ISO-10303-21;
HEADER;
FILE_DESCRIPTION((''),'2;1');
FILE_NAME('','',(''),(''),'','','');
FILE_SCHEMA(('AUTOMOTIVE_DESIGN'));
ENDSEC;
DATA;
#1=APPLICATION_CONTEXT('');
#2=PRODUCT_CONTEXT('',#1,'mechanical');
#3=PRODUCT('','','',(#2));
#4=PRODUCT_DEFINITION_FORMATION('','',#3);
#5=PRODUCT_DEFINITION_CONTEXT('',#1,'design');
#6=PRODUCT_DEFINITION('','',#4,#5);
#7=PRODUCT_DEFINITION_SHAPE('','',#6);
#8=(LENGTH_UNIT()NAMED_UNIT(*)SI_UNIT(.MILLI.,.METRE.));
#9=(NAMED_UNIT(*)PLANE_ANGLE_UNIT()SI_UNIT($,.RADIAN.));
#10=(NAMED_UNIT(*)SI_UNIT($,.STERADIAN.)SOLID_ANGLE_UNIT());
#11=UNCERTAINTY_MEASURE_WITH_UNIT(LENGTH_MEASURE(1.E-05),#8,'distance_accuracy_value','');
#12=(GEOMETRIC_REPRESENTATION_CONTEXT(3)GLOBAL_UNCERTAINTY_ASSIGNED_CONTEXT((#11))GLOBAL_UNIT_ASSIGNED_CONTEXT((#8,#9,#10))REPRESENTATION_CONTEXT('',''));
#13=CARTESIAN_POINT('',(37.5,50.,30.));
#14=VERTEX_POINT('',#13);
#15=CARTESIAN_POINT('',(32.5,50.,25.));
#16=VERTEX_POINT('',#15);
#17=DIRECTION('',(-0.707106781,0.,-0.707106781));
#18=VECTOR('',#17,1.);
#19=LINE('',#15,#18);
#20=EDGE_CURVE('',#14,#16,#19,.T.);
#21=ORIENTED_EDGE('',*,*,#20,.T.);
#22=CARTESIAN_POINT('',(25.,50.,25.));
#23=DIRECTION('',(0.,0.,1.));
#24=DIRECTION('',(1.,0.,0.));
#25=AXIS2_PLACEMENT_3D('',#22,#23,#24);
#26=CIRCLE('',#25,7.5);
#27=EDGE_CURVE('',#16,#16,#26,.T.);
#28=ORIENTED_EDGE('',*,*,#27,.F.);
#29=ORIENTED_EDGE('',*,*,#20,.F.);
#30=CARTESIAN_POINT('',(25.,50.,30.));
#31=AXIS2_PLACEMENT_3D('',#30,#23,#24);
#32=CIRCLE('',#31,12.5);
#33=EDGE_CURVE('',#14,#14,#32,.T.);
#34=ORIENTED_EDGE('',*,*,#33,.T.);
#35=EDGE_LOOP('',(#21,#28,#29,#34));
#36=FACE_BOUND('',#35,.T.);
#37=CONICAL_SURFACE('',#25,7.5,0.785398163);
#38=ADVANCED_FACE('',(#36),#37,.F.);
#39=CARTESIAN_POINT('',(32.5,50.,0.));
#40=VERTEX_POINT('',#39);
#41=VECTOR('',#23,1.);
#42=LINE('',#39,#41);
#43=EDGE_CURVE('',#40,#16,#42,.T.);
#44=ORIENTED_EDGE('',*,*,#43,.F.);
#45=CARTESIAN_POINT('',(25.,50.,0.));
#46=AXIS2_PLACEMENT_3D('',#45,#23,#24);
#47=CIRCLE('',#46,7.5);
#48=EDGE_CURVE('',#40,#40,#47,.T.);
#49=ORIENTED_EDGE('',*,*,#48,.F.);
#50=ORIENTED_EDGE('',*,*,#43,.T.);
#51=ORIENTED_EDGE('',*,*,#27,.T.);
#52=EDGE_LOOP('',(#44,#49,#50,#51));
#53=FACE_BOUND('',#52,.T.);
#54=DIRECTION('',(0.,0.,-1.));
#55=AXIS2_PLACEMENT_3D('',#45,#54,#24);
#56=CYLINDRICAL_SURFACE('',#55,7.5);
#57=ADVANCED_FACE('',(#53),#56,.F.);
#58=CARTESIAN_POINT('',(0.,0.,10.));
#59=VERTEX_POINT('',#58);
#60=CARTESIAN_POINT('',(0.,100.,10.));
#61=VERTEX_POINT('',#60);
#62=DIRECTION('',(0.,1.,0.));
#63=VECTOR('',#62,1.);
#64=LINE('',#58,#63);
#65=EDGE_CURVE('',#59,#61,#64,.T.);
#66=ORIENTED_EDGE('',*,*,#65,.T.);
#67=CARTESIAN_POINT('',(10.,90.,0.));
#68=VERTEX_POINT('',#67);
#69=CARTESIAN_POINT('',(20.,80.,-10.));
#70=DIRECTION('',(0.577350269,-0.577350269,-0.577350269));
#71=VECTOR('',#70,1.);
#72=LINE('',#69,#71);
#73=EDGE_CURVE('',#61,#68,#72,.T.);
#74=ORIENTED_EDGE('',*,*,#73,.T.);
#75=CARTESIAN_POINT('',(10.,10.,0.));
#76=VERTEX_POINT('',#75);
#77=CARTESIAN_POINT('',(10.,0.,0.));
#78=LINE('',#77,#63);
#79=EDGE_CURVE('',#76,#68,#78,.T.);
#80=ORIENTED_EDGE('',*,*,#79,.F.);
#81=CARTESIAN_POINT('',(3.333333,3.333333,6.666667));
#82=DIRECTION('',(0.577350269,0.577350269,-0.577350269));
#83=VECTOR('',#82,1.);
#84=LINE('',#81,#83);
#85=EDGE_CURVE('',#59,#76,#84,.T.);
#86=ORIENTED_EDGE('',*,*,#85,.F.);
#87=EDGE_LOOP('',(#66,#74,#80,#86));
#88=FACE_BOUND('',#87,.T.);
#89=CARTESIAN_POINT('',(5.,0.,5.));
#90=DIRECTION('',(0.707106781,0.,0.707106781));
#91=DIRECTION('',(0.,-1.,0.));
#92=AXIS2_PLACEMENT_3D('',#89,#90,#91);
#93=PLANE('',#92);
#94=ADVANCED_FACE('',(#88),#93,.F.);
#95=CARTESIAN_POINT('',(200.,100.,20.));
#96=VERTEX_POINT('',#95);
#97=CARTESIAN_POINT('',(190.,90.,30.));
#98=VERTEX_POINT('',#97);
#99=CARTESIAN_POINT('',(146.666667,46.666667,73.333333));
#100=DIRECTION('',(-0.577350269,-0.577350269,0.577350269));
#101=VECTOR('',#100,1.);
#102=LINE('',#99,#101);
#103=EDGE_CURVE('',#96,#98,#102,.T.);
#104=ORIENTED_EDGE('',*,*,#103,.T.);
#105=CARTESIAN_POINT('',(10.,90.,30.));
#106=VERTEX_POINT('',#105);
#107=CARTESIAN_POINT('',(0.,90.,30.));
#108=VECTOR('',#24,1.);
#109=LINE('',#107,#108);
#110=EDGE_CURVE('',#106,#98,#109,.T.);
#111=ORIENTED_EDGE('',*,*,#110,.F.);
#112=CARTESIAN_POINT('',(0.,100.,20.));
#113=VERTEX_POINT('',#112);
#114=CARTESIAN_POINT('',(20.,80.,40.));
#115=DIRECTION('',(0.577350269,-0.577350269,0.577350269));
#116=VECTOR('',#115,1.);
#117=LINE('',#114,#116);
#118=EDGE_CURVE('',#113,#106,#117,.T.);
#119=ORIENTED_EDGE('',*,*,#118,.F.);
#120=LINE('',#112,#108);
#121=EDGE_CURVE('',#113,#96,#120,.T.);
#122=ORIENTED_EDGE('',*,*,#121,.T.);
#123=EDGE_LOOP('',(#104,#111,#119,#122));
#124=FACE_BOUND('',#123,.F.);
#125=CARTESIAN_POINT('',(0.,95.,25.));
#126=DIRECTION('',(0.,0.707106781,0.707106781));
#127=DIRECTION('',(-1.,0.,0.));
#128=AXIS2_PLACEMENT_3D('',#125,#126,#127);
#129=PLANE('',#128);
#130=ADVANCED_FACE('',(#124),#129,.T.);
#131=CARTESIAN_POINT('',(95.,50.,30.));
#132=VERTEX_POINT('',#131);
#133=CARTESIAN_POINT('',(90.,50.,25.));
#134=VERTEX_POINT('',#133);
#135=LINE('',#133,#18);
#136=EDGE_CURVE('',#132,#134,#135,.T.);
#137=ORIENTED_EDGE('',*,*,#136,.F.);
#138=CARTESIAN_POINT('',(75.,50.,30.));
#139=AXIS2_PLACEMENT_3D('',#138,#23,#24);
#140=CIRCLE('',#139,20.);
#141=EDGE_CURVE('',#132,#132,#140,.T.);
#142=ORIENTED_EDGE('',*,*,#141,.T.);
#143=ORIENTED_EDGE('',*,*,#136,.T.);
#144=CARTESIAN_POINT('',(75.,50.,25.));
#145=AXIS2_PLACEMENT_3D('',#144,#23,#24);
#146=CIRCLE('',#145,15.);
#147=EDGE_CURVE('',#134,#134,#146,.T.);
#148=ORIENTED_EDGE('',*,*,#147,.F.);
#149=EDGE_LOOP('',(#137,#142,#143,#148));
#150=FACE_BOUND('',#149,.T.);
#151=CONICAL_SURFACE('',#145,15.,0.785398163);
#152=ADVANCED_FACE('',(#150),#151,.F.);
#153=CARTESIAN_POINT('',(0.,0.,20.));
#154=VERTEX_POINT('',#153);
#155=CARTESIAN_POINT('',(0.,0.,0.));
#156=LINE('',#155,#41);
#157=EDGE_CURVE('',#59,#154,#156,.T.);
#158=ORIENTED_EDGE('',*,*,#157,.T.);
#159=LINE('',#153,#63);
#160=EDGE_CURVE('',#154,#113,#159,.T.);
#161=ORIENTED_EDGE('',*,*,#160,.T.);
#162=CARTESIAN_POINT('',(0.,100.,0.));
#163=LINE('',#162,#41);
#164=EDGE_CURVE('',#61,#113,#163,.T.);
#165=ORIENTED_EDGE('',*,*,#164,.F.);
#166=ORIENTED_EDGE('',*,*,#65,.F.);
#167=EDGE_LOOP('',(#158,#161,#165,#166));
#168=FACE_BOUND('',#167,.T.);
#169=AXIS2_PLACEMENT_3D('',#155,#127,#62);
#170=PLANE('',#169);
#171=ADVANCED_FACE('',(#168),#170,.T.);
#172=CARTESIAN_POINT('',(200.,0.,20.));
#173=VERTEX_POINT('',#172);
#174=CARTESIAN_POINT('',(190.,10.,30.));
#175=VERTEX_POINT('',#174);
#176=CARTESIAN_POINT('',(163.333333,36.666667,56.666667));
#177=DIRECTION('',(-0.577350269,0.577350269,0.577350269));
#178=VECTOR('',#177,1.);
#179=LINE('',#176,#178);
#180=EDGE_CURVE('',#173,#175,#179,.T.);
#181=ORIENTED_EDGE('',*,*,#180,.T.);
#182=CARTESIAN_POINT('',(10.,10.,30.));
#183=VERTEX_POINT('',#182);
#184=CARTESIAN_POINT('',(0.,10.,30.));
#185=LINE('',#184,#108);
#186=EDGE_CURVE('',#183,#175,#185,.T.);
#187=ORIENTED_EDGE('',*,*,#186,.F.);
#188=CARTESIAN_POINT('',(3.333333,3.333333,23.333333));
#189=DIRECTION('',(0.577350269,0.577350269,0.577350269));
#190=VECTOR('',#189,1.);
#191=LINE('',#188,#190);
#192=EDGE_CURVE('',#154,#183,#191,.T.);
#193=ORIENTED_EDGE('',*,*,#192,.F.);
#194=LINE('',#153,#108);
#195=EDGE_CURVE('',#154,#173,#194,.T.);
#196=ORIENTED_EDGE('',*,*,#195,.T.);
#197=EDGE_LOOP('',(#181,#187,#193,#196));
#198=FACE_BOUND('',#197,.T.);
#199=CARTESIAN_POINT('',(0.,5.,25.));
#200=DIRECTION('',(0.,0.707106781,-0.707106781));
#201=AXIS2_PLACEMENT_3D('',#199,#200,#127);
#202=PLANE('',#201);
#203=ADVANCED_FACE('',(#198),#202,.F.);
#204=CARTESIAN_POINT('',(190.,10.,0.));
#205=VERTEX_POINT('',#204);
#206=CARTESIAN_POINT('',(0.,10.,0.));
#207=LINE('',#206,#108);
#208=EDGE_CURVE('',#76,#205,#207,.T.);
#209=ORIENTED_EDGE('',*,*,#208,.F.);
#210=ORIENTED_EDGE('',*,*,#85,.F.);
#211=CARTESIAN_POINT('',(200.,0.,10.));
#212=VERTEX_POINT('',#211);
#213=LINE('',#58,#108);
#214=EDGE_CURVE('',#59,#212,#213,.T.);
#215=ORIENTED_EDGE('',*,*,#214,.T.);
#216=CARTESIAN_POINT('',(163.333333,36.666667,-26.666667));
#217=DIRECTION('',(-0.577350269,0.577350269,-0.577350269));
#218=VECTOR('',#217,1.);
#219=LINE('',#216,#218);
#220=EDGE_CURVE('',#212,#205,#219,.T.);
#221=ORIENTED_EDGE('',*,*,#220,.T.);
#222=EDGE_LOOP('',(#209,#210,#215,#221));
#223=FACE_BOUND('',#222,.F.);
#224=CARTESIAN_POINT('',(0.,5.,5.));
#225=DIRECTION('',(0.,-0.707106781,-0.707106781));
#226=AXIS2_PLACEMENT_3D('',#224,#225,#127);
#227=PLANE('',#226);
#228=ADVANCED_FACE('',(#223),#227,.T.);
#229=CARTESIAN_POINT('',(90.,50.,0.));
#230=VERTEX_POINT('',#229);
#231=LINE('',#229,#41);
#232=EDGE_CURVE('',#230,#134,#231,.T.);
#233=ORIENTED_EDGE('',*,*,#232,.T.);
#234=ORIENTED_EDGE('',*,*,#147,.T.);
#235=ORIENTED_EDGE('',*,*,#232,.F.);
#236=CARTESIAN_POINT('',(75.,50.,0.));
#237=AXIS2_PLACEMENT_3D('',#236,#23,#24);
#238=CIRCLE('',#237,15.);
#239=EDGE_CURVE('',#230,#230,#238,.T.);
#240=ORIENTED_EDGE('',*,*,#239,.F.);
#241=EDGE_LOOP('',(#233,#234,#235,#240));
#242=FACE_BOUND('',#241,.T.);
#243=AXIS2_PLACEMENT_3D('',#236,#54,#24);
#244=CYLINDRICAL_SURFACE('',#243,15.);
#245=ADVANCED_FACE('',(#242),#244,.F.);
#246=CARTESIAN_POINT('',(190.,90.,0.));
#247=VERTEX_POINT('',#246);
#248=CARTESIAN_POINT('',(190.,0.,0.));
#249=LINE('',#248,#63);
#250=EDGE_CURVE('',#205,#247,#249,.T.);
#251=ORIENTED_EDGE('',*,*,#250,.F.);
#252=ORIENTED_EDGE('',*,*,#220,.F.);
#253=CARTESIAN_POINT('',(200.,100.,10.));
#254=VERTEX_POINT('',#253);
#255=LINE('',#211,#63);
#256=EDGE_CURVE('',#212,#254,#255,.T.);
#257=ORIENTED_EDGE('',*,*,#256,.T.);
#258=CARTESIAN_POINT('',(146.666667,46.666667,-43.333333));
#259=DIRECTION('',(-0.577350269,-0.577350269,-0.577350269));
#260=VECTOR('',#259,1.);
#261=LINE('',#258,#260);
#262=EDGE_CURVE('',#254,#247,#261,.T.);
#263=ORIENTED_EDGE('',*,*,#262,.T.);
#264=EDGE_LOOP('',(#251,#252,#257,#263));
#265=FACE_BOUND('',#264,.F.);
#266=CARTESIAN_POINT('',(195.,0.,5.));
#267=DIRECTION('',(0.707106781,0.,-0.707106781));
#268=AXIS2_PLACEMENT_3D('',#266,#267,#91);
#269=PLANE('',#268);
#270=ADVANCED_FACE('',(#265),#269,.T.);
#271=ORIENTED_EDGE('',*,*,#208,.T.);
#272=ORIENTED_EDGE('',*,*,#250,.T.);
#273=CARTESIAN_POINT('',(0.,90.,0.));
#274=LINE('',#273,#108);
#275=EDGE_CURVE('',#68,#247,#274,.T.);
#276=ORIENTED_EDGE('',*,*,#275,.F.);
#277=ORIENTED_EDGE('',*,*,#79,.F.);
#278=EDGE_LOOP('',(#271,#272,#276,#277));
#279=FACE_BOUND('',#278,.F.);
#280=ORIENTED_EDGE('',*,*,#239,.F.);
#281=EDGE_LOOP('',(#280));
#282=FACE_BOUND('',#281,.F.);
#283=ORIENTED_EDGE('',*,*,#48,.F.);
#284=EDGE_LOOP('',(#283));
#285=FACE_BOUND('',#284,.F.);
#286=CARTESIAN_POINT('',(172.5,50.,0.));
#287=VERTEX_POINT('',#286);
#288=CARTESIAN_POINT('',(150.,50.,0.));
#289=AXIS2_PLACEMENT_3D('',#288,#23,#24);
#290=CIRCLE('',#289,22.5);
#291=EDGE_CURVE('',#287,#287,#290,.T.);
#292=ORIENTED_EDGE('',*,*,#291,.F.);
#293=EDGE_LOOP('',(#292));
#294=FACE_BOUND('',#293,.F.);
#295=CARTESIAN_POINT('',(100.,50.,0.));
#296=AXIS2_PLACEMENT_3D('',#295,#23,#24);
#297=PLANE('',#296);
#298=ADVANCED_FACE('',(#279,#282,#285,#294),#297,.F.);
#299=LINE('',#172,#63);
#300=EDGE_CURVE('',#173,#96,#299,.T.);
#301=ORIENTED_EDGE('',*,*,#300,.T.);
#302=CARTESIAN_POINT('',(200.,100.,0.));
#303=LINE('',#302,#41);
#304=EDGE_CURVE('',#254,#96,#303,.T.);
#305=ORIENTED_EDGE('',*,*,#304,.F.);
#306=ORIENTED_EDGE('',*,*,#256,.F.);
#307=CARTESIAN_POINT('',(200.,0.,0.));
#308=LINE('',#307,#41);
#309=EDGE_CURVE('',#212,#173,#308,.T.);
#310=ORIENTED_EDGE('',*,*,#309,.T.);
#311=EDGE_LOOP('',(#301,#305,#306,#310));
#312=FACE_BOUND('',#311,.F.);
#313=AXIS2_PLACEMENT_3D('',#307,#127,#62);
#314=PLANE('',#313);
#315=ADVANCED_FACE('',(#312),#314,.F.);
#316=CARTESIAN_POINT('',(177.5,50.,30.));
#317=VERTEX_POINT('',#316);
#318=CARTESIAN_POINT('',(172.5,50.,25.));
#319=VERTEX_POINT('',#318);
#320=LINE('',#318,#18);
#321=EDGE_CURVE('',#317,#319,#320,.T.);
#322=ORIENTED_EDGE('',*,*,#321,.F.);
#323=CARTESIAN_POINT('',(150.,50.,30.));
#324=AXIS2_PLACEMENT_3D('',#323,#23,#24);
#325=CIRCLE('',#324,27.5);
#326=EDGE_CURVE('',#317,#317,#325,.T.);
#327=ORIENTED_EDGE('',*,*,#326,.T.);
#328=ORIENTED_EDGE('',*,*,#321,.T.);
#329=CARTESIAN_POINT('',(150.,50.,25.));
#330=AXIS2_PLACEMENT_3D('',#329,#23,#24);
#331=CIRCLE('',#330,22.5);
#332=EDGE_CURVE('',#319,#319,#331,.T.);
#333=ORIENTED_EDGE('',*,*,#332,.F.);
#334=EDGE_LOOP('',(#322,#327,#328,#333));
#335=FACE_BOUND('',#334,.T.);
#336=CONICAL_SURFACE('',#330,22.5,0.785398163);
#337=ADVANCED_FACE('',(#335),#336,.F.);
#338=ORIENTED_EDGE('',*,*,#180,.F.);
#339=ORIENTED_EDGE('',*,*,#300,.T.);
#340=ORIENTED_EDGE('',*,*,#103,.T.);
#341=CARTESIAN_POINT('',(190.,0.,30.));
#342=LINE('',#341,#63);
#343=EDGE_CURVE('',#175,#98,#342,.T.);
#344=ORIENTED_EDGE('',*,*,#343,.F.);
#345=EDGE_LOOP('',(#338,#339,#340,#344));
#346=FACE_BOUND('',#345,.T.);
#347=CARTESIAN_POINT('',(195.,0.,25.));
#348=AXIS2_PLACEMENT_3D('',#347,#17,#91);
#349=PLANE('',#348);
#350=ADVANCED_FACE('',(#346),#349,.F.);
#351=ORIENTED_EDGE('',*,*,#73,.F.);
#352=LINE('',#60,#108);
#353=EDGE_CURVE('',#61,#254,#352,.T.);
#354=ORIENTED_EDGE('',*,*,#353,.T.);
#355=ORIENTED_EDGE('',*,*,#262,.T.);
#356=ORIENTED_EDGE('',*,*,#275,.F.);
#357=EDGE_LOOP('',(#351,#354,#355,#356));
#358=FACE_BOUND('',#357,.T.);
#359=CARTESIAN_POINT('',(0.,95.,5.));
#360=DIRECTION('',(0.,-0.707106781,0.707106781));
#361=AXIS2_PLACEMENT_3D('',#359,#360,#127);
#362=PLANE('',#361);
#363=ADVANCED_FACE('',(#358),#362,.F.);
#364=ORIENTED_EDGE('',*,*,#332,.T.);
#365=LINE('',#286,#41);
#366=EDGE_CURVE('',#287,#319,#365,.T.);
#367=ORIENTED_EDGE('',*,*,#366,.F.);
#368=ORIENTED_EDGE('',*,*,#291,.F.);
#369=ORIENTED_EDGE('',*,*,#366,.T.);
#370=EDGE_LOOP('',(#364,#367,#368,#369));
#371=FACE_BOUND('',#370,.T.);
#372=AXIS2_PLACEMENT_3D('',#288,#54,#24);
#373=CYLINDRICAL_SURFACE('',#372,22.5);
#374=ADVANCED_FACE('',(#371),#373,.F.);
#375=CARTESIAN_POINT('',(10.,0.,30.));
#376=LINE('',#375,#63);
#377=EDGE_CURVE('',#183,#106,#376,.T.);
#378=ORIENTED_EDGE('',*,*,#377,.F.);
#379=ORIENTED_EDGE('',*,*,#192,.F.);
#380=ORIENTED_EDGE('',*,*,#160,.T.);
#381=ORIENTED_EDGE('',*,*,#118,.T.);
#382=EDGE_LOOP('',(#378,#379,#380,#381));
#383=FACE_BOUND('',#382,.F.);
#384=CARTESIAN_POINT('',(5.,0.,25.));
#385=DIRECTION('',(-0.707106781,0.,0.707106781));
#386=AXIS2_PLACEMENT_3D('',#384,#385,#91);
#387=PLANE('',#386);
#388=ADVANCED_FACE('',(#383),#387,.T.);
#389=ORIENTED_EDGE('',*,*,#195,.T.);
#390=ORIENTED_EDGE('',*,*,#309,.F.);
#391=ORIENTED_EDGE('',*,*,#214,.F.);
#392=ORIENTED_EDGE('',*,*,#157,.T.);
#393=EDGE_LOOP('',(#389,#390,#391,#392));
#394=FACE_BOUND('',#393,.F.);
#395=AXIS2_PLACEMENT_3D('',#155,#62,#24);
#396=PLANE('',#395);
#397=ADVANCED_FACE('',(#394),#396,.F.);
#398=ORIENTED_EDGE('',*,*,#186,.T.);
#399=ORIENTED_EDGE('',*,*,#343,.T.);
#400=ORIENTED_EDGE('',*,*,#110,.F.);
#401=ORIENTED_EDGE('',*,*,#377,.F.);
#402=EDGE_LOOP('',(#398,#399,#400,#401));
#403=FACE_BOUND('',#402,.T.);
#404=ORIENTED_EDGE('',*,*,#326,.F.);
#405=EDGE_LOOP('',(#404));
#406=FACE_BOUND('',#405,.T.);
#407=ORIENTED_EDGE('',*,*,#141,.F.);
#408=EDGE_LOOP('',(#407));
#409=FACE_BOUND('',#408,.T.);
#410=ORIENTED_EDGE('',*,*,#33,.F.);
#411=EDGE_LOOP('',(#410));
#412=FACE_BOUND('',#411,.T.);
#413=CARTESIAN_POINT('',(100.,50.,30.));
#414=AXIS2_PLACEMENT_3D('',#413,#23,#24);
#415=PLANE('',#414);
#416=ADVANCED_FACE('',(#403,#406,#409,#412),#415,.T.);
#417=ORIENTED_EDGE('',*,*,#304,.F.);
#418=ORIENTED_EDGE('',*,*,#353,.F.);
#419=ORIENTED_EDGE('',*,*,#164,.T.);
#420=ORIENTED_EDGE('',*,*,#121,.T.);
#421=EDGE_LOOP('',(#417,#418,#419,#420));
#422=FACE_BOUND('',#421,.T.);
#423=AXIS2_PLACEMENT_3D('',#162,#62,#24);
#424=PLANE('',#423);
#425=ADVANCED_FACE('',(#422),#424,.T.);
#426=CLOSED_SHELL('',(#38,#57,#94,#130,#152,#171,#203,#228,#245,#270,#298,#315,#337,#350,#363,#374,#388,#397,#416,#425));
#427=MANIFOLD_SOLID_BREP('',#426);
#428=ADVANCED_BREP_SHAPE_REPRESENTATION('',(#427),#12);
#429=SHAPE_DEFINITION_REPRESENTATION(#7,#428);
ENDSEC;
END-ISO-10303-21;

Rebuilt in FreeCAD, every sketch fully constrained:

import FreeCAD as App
import Part
import Sketcher

V = App.Vector


def edges_at(feature, points):
    """Names of the edges that pass closest to the given points."""
    edges = feature.Shape.Edges
    near = lambda p: min(range(len(edges)), key=lambda i: edges[i].distToShape(Part.Vertex(*p))[0])
    return sorted({f"Edge{near(p) + 1}" for p in points})


def add_polygon(sketch, points):
    """Adds a closed chain of lines whose ends are joined by coincident constraints."""
    first, n = sketch.GeometryCount, len(points)
    for a, b in zip(points, points[1:] + points[:1]):
        sketch.addGeometry(Part.LineSegment(App.Vector(*a, 0), App.Vector(*b, 0)), False)
    for i in range(n):
        sketch.addConstraint(Sketcher.Constraint("Coincident", first + i, 2, first + (i + 1) % n, 1))

doc = App.newDocument("Part")
body = doc.addObject("PartDesign::Body", "Body")

# Sketch on XY plane
sketch1 = body.newObject("Sketcher::SketchObject", "Sketch")
sketch1.AttachmentSupport = (doc.getObject("XY_Plane"), [""])
sketch1.MapMode = "FlatFace"
add_polygon(sketch1, [(0, 100), (0, 0), (200, 0), (200, 100)])  # lines 0-3
sketch1.addGeometry(Part.Circle(V(25, 50, 0), V(0, 0, 1), 8), False)  # 4
sketch1.addGeometry(Part.Circle(V(75, 50, 0), V(0, 0, 1), 15), False)  # 5
sketch1.addGeometry(Part.Circle(V(150, 50, 0), V(0, 0, 1), 22), False)  # 6
sketch1.addConstraint([
    Sketcher.Constraint("Vertical", 0),
    Sketcher.Constraint("Horizontal", 1),
    Sketcher.Constraint("Vertical", 2),
    Sketcher.Constraint("Horizontal", 3),
    Sketcher.Constraint("Coincident", 0, 2, -1, 1),
    Sketcher.Constraint("Horizontal", 4, 3, 5, 3),
    Sketcher.Constraint("Horizontal", 5, 3, 6, 3),
    Sketcher.Constraint("Diameter", 4, 15.0),
    Sketcher.Constraint("Diameter", 5, 30.0),
    Sketcher.Constraint("Diameter", 6, 45.0),
    Sketcher.Constraint("DistanceX", 1, 1, 1, 2, 200.0),
    Sketcher.Constraint("DistanceY", 0, 2, 0, 1, 100.0),
    Sketcher.Constraint("DistanceX", -1, 1, 4, 3, 25.0),
    Sketcher.Constraint("DistanceY", -1, 1, 4, 3, 50.0),
    Sketcher.Constraint("DistanceX", -1, 1, 5, 3, 75.0),
    Sketcher.Constraint("DistanceX", -1, 1, 6, 3, 150.0),
])
pad1 = body.newObject("PartDesign::Pad", "Pad")
pad1.Profile = sketch1
pad1.Length = 30
doc.recompute()

chamfer = body.newObject("PartDesign::Chamfer", "Chamfer")
chamfer.Base = (pad1, edges_at(pad1, [
    (0, 50, 30),
    (100, 100, 30),
    (100, 0, 30),
    (200, 50, 30),
    (200, 50, 0),
    (100, 100, 0),
    (0, 50, 0),
    (100, 0, 0),
]))
chamfer.ChamferType = "Two distances"
chamfer.Size = 10
chamfer.Size2 = 10
doc.recompute()

chamfer2 = body.newObject("PartDesign::Chamfer", "Chamfer001")
chamfer2.Base = (chamfer, edges_at(chamfer, [(127.5, 50, 30), (60, 50, 30), (17.5, 50, 30)]))
chamfer2.ChamferType = "Two distances"
chamfer2.Size = 5
chamfer2.Size2 = 5

doc.recompute()
